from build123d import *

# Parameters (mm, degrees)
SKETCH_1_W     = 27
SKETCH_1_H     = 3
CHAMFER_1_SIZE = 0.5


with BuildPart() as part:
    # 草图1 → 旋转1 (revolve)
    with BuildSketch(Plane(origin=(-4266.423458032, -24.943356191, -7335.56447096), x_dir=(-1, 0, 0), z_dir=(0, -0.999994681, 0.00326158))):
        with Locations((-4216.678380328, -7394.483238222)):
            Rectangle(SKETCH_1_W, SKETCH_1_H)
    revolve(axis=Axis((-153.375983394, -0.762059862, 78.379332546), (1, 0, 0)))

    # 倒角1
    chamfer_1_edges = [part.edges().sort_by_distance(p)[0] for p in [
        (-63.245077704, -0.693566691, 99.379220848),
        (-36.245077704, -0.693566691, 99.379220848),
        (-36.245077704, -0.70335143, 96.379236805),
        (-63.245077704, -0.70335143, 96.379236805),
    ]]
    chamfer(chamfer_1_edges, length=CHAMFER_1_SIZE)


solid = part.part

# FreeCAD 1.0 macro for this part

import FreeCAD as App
import Part
import Sketcher

V = App.Vector
Q = App.Units.Quantity


def edges_at(feature, points):
    """Names of the edges that pass closest to the given points."""
    edges = feature.Shape.Edges
    near = lambda p: min(range(len(edges)), key=lambda i: edges[i].distToShape(Part.Vertex(*p))[0])
    return sorted({f"Edge{near(p) + 1}" for p in points})


def add_polygon(sketch, points):
    """Adds a closed chain of lines whose ends are joined by coincident constraints."""
    first, n = sketch.GeometryCount, len(points)
    for a, b in zip(points, points[1:] + points[:1]):
        sketch.addGeometry(Part.LineSegment(App.Vector(*a, 0), App.Vector(*b, 0)), False)
    for i in range(n):
        sketch.addConstraint(Sketcher.Constraint("Coincident", first + i, 2, first + (i + 1) % n, 1))

doc = App.newDocument("Part")
body = doc.addObject("PartDesign::Body", "Body")

# Sketch on an angled plane
sketch1 = body.newObject("Sketcher::SketchObject", "Sketch")
sketch1.Placement = App.Placement(V(-4266.423458, -24.943356, -7335.564471), App.Rotation(V(-1, 0, 0), V(0, -0.00326158, -0.999994681), V(0, -0.999994681, 0.00326158), "ZXY"))
add_polygon(sketch1, [(-4230.2, -7393), (-4230.2, -7396), (-4203.2, -7396), (-4203.2, -7393)])  # lines 0-3
sketch1.addGeometry(Part.LineSegment(V(-4203.2, -7414, 0), V(-4230.2, -7414, 0)), True)  # axis
sketch1.addConstraint(Sketcher.Constraint("Vertical", 0))
sketch1.addConstraint(Sketcher.Constraint("Horizontal", 1))
sketch1.addConstraint(Sketcher.Constraint("Vertical", 2))
sketch1.addConstraint(Sketcher.Constraint("Horizontal", 3))
sketch1.addConstraint(Sketcher.Constraint("Horizontal", 4))
sketch1.addConstraint(Sketcher.Constraint("Vertical", 2, 2, 4, 1))
sketch1.addConstraint(Sketcher.Constraint("Vertical", 3, 2, 4, 2))
sketch1.addConstraint(Sketcher.Constraint("DistanceX", 1, 1, 1, 2, Q("27 mm")))
sketch1.addConstraint(Sketcher.Constraint("DistanceY", 0, 2, 0, 1, Q("3 mm")))
sketch1.addConstraint(Sketcher.Constraint("DistanceY", 4, 1, 1, 2, Q("18 mm")))
sketch1.addConstraint(Sketcher.Constraint("DistanceX", 0, 2, -1, 1, Q("4230.17838 mm")))
sketch1.addConstraint(Sketcher.Constraint("DistanceY", 0, 2, -1, 1, Q("7395.983238 mm")))
revolution = body.newObject("PartDesign::Revolution", "Revolution")
revolution.Profile = sketch1
revolution.ReferenceAxis = (sketch1, ["Axis0"])
revolution.Angle = 360
doc.recompute()

chamfer = body.newObject("PartDesign::Chamfer", "Chamfer")
chamfer.Base = (revolution, edges_at(revolution, [
    (-63.245, -0.694, 99.379),
    (-36.245, -0.694, 99.379),
    (-36.245, -0.703, 96.379),
    (-63.245, -0.703, 96.379),
]))
chamfer.Size = 0.5

doc.recompute()
